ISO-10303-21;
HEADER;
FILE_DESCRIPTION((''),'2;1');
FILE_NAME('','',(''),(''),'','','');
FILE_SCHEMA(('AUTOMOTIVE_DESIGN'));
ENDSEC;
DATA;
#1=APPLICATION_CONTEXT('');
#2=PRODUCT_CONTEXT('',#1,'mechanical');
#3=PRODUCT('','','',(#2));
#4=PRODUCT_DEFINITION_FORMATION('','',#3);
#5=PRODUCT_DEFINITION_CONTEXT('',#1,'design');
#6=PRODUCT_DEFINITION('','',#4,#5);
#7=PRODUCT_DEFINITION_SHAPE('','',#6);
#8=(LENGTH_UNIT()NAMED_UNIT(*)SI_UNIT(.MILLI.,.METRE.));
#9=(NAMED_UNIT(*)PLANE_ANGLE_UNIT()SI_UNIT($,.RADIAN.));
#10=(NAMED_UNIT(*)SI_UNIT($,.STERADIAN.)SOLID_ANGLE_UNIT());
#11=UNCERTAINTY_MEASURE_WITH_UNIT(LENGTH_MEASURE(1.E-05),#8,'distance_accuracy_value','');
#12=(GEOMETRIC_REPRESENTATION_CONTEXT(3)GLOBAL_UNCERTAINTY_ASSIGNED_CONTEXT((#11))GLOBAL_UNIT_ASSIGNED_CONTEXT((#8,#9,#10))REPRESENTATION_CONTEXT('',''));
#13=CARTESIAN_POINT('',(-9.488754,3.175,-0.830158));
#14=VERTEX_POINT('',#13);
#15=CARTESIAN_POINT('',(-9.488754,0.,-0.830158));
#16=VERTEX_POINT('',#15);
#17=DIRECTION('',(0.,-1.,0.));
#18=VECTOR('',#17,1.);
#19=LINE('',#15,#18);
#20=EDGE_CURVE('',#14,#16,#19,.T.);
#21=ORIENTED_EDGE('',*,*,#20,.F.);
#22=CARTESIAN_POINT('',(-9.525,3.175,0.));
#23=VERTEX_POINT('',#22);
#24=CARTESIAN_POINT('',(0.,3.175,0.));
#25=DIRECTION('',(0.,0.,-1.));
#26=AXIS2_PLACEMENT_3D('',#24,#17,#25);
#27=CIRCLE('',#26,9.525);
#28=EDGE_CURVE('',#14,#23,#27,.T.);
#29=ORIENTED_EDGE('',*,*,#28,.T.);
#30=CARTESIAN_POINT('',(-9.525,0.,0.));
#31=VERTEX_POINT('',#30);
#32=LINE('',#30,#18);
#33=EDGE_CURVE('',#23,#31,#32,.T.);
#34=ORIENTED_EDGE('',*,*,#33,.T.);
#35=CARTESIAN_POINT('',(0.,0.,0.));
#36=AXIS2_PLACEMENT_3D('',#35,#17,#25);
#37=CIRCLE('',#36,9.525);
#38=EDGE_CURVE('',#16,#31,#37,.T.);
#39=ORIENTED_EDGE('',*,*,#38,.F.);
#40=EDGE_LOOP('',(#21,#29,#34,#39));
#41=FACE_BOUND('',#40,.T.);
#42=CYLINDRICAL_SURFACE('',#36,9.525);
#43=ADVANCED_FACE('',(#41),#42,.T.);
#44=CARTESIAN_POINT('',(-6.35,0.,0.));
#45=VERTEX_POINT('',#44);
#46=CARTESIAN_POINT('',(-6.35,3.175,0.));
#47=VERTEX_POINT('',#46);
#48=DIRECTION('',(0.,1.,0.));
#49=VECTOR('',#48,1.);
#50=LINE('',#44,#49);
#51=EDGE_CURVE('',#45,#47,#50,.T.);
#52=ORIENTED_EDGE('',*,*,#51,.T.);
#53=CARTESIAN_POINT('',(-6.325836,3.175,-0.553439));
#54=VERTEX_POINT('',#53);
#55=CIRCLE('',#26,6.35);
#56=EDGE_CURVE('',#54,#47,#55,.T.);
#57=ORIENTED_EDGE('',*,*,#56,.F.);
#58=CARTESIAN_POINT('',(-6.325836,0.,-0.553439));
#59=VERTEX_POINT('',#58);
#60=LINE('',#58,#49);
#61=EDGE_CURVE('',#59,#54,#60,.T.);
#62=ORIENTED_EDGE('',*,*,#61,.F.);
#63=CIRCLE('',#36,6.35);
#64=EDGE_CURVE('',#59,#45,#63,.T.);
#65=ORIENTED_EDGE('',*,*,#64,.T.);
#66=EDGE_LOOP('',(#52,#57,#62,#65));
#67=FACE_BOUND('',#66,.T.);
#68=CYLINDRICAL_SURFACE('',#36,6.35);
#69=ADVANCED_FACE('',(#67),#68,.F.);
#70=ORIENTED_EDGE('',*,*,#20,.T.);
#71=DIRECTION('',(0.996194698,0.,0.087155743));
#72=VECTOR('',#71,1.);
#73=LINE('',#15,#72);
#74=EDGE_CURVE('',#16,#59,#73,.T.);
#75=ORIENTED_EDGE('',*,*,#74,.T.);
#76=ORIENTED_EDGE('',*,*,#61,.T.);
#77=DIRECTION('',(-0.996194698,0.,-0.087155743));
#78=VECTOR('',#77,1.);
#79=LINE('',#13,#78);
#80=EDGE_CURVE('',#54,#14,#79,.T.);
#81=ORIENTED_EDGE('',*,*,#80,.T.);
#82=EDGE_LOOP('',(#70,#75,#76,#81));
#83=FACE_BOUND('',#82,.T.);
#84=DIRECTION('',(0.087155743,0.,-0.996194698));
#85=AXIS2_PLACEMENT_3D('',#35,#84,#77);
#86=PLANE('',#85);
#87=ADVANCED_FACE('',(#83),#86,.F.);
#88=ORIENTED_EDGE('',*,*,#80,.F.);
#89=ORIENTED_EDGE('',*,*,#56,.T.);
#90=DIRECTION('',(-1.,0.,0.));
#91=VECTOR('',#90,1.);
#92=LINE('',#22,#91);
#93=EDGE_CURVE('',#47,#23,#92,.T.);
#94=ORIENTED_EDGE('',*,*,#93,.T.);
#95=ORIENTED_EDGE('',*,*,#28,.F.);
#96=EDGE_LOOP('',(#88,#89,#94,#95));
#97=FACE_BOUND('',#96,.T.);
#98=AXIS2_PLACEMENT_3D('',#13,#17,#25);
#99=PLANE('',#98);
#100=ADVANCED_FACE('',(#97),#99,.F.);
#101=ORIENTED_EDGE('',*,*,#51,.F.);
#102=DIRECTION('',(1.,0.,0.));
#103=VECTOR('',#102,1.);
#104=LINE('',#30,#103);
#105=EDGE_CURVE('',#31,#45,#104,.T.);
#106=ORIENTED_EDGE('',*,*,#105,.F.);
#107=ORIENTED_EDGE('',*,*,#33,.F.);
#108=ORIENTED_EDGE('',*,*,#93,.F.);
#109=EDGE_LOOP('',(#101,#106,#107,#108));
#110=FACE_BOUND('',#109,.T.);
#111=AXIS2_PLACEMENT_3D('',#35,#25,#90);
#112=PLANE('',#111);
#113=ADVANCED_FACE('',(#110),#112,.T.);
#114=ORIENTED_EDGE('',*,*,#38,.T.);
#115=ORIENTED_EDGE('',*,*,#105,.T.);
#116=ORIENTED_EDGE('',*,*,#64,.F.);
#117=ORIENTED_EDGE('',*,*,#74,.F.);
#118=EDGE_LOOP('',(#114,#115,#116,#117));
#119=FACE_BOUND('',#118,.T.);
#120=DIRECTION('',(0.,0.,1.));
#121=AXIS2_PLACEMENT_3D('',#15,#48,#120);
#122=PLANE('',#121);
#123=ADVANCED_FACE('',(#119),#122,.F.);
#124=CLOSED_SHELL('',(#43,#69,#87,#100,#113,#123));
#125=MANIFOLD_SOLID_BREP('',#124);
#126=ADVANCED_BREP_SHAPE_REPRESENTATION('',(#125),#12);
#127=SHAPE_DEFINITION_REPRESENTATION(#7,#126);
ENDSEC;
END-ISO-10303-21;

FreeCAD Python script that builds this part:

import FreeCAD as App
import Part
import Sketcher
Q = App.Units.Quantity

doc = App.newDocument("Part")
params = doc.addObject("Spreadsheet::Sheet", "Params")
for row, (alias, value) in enumerate([
    ("sketch1_width", "0.125 in"),
    ("revolution_angle", "355 deg"),
], start=1):
    params.set(f"A{row}", alias)
    params.set(f"B{row}", "=" + value)
    params.setAlias(f"B{row}", alias)

body = doc.addObject("PartDesign::Body", "Body")

# Sketch on XY plane
sketch1 = body.newObject("Sketcher::SketchObject", "Sketch")
sketch1.AttachmentSupport = (doc.getObject("XY_Plane"), [""])
sketch1.MapMode = "FlatFace"
sketch1.addGeometry([
    Part.LineSegment(App.Vector(-9.525, 3.175, 0), App.Vector(-9.525, 0, 0)),
    Part.LineSegment(App.Vector(-9.525, 0, 0), App.Vector(-6.35, 0, 0)),
    Part.LineSegment(App.Vector(-6.35, 0, 0), App.Vector(-6.35, 3.175, 0)),
    Part.LineSegment(App.Vector(-6.35, 3.175, 0), App.Vector(-9.525, 3.175, 0)),
], False)
sketch1.addConstraint([
    Sketcher.Constraint("Coincident", 0, 2, 1, 1),
    Sketcher.Constraint("Coincident", 1, 2, 2, 1),
    Sketcher.Constraint("Coincident", 2, 2, 3, 1),
    Sketcher.Constraint("Coincident", 3, 2, 0, 1),
    Sketcher.Constraint("Vertical", 0),
    Sketcher.Constraint("Horizontal", 1),
    Sketcher.Constraint("Vertical", 2),
    Sketcher.Constraint("Horizontal", 3),
    Sketcher.Constraint("PointOnObject", 0, 2, -1),
    Sketcher.Constraint("Equal", 3, 0),
    Sketcher.Constraint("DistanceX", 1, 1, 1, 2, Q("0.125 in")),
    Sketcher.Constraint("DistanceX", 1, 2, -1, 1, Q("0.25 in")),
])
sketch1.setExpression("Constraints[10]", "Params.sketch1_width")
revolution = body.newObject("PartDesign::Revolution", "Revolution")
revolution.Profile = sketch1
revolution.ReferenceAxis = (sketch1, ["V_Axis"])
revolution.setExpression("Angle", "Params.revolution_angle")

doc.recompute()
